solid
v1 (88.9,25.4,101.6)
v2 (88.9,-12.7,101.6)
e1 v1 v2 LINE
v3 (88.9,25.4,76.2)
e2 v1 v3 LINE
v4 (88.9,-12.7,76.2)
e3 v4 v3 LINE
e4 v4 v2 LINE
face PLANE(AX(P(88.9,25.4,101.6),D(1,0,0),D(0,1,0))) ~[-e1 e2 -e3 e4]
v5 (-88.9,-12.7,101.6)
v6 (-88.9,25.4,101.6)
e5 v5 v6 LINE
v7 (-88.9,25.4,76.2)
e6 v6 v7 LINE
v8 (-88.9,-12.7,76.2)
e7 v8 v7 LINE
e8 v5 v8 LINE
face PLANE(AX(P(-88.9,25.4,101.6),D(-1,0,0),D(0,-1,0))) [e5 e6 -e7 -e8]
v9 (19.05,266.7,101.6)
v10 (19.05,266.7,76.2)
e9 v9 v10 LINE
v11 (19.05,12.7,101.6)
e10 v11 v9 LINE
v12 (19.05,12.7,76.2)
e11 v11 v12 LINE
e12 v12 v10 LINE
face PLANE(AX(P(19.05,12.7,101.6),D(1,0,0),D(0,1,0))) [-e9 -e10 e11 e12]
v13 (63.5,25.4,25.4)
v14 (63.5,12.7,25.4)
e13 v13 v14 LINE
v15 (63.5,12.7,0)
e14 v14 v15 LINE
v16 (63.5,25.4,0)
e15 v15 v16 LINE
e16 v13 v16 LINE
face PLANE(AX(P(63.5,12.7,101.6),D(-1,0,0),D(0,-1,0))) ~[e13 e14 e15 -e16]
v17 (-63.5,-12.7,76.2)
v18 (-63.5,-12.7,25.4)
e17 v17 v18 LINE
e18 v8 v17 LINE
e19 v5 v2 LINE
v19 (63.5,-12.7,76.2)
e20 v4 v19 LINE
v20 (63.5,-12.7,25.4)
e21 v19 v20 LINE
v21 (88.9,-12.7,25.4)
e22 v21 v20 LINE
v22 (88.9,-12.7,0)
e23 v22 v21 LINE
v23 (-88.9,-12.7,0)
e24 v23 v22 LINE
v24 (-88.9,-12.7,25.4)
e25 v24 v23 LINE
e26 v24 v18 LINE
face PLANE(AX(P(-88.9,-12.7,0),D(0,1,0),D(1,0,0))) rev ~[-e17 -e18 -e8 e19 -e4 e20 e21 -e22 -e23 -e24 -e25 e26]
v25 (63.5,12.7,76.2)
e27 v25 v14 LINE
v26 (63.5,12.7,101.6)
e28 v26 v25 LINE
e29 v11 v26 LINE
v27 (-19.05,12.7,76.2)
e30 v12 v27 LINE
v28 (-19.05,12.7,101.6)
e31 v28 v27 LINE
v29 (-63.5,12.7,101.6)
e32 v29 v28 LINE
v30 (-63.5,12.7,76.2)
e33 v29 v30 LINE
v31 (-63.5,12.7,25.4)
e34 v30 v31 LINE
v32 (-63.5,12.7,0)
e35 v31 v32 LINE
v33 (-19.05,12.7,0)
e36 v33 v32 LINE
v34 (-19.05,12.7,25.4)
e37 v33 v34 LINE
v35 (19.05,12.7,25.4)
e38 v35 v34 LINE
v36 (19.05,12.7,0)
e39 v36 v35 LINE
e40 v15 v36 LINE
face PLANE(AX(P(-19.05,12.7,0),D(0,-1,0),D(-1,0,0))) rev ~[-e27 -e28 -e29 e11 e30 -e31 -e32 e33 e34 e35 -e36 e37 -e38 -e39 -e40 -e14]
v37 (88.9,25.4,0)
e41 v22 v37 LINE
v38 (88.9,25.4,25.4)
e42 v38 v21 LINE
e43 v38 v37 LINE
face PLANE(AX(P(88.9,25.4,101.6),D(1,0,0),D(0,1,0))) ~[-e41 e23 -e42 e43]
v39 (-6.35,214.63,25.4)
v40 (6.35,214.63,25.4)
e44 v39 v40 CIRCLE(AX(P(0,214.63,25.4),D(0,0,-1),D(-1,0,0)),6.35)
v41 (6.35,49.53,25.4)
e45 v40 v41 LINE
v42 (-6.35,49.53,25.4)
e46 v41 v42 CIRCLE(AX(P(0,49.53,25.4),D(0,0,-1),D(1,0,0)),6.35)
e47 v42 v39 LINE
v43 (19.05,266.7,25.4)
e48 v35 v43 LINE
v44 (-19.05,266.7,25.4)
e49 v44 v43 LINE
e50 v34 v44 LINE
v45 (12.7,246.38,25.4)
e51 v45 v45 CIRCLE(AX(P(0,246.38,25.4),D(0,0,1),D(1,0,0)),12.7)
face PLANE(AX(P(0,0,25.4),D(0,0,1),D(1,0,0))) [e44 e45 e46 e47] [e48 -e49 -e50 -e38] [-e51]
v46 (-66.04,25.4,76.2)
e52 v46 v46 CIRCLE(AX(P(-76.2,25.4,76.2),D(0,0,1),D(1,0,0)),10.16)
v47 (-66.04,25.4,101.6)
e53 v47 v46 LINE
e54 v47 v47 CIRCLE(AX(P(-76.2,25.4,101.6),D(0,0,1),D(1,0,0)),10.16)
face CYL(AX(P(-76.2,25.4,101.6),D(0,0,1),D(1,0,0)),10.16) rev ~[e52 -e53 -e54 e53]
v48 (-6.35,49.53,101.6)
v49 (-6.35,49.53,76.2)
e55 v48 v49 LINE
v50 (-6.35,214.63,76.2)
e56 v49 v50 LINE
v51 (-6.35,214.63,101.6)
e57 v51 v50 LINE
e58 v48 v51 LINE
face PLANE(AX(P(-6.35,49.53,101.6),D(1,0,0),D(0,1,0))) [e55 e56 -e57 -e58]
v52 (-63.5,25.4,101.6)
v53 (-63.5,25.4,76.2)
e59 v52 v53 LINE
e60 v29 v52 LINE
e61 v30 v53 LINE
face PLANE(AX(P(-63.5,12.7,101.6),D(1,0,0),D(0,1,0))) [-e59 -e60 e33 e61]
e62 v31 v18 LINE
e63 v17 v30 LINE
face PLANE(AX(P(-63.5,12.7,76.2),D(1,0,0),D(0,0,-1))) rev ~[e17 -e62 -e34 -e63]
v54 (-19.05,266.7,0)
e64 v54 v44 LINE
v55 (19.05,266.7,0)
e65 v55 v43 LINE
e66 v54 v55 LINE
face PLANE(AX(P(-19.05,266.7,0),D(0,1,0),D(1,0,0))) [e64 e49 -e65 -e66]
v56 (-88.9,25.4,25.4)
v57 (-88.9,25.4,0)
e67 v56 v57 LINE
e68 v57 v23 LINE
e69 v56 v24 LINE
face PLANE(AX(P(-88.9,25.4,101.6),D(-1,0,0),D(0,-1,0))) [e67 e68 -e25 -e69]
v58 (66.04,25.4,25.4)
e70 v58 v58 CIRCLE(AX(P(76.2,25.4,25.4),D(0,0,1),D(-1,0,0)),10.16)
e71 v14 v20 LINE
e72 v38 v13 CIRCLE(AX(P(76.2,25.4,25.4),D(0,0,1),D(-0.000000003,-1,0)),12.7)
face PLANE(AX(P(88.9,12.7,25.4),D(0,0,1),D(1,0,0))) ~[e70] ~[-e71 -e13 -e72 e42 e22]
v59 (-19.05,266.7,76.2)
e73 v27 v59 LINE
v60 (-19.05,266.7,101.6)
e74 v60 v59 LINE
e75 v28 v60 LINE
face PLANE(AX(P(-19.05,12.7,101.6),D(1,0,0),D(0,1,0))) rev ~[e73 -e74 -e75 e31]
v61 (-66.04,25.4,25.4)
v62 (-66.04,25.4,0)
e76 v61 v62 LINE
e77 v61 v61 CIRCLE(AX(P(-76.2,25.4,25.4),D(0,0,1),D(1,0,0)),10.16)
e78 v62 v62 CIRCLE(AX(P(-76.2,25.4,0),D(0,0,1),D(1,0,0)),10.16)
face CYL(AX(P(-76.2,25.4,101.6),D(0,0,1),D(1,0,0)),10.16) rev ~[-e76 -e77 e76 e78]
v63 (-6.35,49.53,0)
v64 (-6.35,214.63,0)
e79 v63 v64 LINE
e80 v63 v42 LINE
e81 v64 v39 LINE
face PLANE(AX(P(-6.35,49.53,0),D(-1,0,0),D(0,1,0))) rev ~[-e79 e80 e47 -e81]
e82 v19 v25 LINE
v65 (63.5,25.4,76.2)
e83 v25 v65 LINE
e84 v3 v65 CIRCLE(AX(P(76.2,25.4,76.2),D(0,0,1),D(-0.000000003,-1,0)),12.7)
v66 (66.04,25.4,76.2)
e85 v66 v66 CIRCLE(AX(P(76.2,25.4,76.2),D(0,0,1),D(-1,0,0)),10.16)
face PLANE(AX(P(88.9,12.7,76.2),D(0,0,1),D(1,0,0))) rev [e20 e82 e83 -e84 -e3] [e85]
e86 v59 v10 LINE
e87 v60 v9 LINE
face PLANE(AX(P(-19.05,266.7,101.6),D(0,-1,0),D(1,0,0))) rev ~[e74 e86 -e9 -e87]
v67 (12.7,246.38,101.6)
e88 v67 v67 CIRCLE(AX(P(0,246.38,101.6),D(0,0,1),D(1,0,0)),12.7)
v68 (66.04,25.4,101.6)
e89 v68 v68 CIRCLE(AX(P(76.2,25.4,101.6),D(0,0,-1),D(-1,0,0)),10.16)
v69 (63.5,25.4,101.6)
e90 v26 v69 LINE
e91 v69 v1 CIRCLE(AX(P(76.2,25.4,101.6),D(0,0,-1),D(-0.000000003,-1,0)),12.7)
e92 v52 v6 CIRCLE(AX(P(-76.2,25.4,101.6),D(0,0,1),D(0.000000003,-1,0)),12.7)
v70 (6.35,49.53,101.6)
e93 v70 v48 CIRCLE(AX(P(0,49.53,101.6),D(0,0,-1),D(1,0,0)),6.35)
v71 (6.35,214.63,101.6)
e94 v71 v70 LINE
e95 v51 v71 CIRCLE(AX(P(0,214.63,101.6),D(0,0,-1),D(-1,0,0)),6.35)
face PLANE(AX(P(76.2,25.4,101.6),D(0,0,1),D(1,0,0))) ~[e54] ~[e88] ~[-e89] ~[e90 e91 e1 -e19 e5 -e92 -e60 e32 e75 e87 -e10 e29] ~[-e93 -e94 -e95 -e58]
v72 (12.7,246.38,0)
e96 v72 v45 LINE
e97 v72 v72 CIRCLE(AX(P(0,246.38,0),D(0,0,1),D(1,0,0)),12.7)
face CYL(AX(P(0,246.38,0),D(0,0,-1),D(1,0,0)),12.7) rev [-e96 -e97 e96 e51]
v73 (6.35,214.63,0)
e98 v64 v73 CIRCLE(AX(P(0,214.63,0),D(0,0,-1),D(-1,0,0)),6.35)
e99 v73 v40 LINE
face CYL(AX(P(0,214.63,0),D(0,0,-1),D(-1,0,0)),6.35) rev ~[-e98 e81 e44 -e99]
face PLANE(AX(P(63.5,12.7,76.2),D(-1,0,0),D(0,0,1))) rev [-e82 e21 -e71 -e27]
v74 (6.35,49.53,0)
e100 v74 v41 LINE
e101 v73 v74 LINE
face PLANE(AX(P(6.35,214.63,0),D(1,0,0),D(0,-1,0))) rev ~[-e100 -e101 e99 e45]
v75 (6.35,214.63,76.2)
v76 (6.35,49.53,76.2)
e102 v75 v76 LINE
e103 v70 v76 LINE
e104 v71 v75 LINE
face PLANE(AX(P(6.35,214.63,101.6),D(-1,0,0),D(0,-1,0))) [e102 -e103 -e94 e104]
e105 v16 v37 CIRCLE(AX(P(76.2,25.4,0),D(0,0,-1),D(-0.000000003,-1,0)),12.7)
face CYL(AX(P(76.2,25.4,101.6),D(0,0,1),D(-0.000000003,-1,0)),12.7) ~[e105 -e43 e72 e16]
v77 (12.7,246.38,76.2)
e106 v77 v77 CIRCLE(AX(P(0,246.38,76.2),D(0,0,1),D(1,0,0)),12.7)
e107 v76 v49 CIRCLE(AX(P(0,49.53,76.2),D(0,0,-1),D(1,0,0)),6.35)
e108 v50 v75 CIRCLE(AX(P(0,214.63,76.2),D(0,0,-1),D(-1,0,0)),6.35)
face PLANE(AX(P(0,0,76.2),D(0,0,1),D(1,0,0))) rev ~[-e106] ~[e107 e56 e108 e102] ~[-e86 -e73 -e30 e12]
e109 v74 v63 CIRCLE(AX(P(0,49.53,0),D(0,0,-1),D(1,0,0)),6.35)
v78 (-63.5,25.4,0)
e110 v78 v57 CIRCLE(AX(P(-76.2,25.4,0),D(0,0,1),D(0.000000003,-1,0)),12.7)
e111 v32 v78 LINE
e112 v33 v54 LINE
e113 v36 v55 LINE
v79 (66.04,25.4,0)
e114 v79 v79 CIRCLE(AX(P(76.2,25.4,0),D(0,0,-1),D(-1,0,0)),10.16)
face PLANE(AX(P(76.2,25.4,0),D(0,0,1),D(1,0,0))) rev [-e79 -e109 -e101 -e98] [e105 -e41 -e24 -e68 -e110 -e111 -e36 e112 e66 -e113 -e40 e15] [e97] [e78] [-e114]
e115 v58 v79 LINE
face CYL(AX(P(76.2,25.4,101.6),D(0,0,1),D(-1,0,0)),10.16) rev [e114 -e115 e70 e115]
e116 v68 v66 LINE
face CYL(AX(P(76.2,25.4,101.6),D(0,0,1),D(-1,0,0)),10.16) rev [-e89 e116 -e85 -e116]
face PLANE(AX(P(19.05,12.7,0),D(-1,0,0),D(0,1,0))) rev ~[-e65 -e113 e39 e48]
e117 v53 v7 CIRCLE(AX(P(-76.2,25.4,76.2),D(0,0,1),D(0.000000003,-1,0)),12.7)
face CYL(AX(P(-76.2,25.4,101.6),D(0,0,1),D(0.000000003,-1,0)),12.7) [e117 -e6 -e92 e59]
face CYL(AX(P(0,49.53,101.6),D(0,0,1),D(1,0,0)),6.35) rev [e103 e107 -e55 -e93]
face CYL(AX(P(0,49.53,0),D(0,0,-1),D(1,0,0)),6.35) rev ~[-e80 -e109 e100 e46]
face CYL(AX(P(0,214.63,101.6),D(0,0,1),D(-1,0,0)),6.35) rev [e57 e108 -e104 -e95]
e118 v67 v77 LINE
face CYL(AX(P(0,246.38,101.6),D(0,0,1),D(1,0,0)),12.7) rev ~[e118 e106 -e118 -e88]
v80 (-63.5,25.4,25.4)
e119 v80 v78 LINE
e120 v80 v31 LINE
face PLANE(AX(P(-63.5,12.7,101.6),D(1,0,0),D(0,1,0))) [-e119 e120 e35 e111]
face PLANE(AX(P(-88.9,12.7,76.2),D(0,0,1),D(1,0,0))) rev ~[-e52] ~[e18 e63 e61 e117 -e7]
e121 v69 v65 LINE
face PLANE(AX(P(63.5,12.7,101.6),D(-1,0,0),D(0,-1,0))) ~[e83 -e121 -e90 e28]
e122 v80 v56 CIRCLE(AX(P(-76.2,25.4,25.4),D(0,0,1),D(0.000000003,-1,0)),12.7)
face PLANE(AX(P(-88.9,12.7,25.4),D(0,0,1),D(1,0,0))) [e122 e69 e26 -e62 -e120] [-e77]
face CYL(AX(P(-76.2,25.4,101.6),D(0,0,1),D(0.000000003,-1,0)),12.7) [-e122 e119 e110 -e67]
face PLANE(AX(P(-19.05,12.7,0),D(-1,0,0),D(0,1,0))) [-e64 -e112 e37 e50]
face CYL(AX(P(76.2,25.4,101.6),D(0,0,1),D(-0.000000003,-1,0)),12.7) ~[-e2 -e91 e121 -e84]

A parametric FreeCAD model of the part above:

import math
import FreeCAD as App
import Part
import Sketcher
from FreeCAD import Vector
Q = App.Units.Quantity


def add_polygon(sketch, points):
    """Adds a closed chain of lines whose ends are joined by coincident constraints."""
    first, n = sketch.GeometryCount, len(points)
    for a, b in zip(points, points[1:] + points[:1]):
        sketch.addGeometry(Part.LineSegment(App.Vector(*a, 0), App.Vector(*b, 0)), False)
    for i in range(n):
        sketch.addConstraint(Sketcher.Constraint("Coincident", first + i, 2, first + (i + 1) % n, 1))

doc = App.newDocument("Part")
body = doc.addObject("PartDesign::Body", "Body")

# Sketch on XY plane
sketch1 = doc.addObject("Sketcher::SketchObject", "Sketch")
body.addObject(sketch1)
sketch1.AttachmentSupport = (doc.XY_Plane, [""])
sketch1.MapMode = "FlatFace"
add_polygon(sketch1, [(-89, -13), (89, -13), (89, 13), (19, 13), (19, 267), (-19, 267), (-19, 13), (-89, 13)])  # lines 0-7
sketch1.addGeometry(Part.LineSegment(Vector(6, 215, 0), Vector(6, 50, 0)), False)  # 8
sketch1.addGeometry(Part.ArcOfCircle(Part.Circle(Vector(0, 50, 0), Vector(0, 0, 1), 6), math.radians(180), math.radians(360)), False)  # 9
sketch1.addGeometry(Part.LineSegment(Vector(-6, 50, 0), Vector(-6, 215, 0)), False)  # 10
sketch1.addGeometry(Part.ArcOfCircle(Part.Circle(Vector(0, 215, 0), Vector(0, 0, 1), 6), math.radians(0), math.radians(180)), False)  # 11
sketch1.addGeometry(Part.Circle(Vector(0, 246, 0), Vector(0, 0, 1), 13), False)  # 12
sketch1.addConstraint([
    Sketcher.Constraint("Tangent", 8, 2, 9, 2),
    Sketcher.Constraint("Tangent", 9, 1, 10, 1),
    Sketcher.Constraint("Tangent", 10, 2, 11, 2),
    Sketcher.Constraint("Tangent", 11, 1, 8, 1),
    Sketcher.Constraint("Horizontal", 0),
    Sketcher.Constraint("Vertical", 1),
    Sketcher.Constraint("Horizontal", 2),
    Sketcher.Constraint("Vertical", 3),
    Sketcher.Constraint("Horizontal", 4),
    Sketcher.Constraint("Vertical", 5),
    Sketcher.Constraint("Horizontal", 6),
    Sketcher.Constraint("Vertical", 7),
    Sketcher.Constraint("Vertical", 8),
    Sketcher.Constraint("Vertical", 10),
    Sketcher.Constraint("Symmetric", 0, 2, 6, 2, -1, 1),
    Sketcher.Constraint("Symmetric", 2, 2, 5, 2, -2),
    Sketcher.Constraint("PointOnObject", 9, 3, -2),
    Sketcher.Constraint("PointOnObject", 12, 3, -2),
    Sketcher.Constraint("Diameter", 12, Q("1 in")),
    Sketcher.Constraint("DistanceX", 0, 1, 0, 2, Q("7 in")),
    Sketcher.Constraint("DistanceY", 1, 1, 1, 2, Q("1 in")),
    Sketcher.Constraint("DistanceY", 3, 1, 3, 2, Q("10 in")),
    Sketcher.Constraint("Radius", 9, Q("0.25 in")),
    Sketcher.Constraint("DistanceX", 4, 2, 4, 1, Q("1.5 in")),
    Sketcher.Constraint("DistanceY", 8, 2, 8, 1, Q("6.5 in")),
    Sketcher.Constraint("DistanceY", -1, 1, 12, 3, Q("9.7 in")),
    Sketcher.Constraint("DistanceY", -1, 1, 9, 3, Q("1.95 in")),
])
pad1 = doc.addObject("PartDesign::Pad", "Pad")
body.addObject(pad1)
pad1.Profile = sketch1
pad1.Length = Q("1 in")

# Sketch on XY plane
sketch2 = doc.addObject("Sketcher::SketchObject", "Sketch001")
body.addObject(sketch2)
sketch2.AttachmentSupport = (doc.XY_Plane, [""])
sketch2.MapMode = "FlatFace"
add_polygon(sketch2, [(-89, 13), (-89, -13), (89, -13), (89, 13)])  # lines 0-3
sketch2.addConstraint([
    Sketcher.Constraint("Vertical", 0),
    Sketcher.Constraint("Horizontal", 1),
    Sketcher.Constraint("Vertical", 2),
    Sketcher.Constraint("Horizontal", 3),
    Sketcher.Constraint("Symmetric", 0, 2, 2, 2, -1, 1),
    Sketcher.Constraint("DistanceX", 1, 1, 1, 2, Q("7 in")),
    Sketcher.Constraint("DistanceY", 0, 2, 0, 1, Q("1 in")),
])
pad2 = doc.addObject("PartDesign::Pad", "Pad001")
body.addObject(pad2)
pad2.Profile = sketch2
pad2.Length = Q("4 in")

# Sketch on XY plane
sketch3 = doc.addObject("Sketcher::SketchObject", "Sketch002")
body.addObject(sketch3)
sketch3.AttachmentSupport = (doc.XY_Plane, [""])
sketch3.MapMode = "FlatFace"
sketch3.AttachmentOffset = App.Placement(Vector(0, 0, 4 * 25.4), App.Rotation())
add_polygon(sketch3, [(-89, -13), (89, -13), (89, 13), (19, 13), (19, 267), (-19, 267), (-19, 13), (-89, 13)])  # lines 0-7
sketch3.addGeometry(Part.LineSegment(Vector(6, 215, 0), Vector(6, 50, 0)), False)  # 8
sketch3.addGeometry(Part.ArcOfCircle(Part.Circle(Vector(0, 50, 0), Vector(0, 0, 1), 6), math.radians(180), math.radians(360)), False)  # 9
sketch3.addGeometry(Part.LineSegment(Vector(-6, 50, 0), Vector(-6, 215, 0)), False)  # 10
sketch3.addGeometry(Part.ArcOfCircle(Part.Circle(Vector(0, 215, 0), Vector(0, 0, 1), 6), math.radians(0), math.radians(180)), False)  # 11
sketch3.addGeometry(Part.Circle(Vector(0, 246, 0), Vector(0, 0, 1), 13), False)  # 12
sketch3.addConstraint([
    Sketcher.Constraint("Tangent", 8, 2, 9, 2),
    Sketcher.Constraint("Tangent", 9, 1, 10, 1),
    Sketcher.Constraint("Tangent", 10, 2, 11, 2),
    Sketcher.Constraint("Tangent", 11, 1, 8, 1),
    Sketcher.Constraint("Horizontal", 0),
    Sketcher.Constraint("Vertical", 1),
    Sketcher.Constraint("Horizontal", 2),
    Sketcher.Constraint("Vertical", 3),
    Sketcher.Constraint("Horizontal", 4),
    Sketcher.Constraint("Vertical", 5),
    Sketcher.Constraint("Horizontal", 6),
    Sketcher.Constraint("Vertical", 7),
    Sketcher.Constraint("Vertical", 8),
    Sketcher.Constraint("Vertical", 10),
    Sketcher.Constraint("Symmetric", 0, 2, 6, 2, -1, 1),
    Sketcher.Constraint("Symmetric", 2, 2, 5, 2, -2),
    Sketcher.Constraint("PointOnObject", 9, 3, -2),
    Sketcher.Constraint("PointOnObject", 12, 3, -2),
    Sketcher.Constraint("Diameter", 12, Q("1 in")),
    Sketcher.Constraint("DistanceX", 0, 1, 0, 2, Q("7 in")),
    Sketcher.Constraint("DistanceY", 1, 1, 1, 2, Q("1 in")),
    Sketcher.Constraint("DistanceY", 3, 1, 3, 2, Q("10 in")),
    Sketcher.Constraint("Radius", 9, Q("0.25 in")),
    Sketcher.Constraint("DistanceX", 4, 2, 4, 1, Q("1.5 in")),
    Sketcher.Constraint("DistanceY", 8, 2, 8, 1, Q("6.5 in")),
    Sketcher.Constraint("DistanceY", -1, 1, 12, 3, Q("9.7 in")),
    Sketcher.Constraint("DistanceY", -1, 1, 9, 3, Q("1.95 in")),
])
pad3 = doc.addObject("PartDesign::Pad", "Pad002")
body.addObject(pad3)
pad3.Profile = sketch3
pad3.Length = Q("1 in")
pad3.Reversed = True

# Sketch on XY plane
sketch4 = doc.addObject("Sketcher::SketchObject", "Sketch003")
body.addObject(sketch4)
sketch4.AttachmentSupport = (doc.XY_Plane, [""])
sketch4.MapMode = "FlatFace"
sketch4.AttachmentOffset = App.Placement(Vector(0, 0, 4 * 25.4), App.Rotation())
sketch4.addGeometry([
    Part.LineSegment(Vector(-89, 25, 0), Vector(-89, 13, 0)),  # 0
    Part.LineSegment(Vector(-89, 13, 0), Vector(-64, 13, 0)),  # 1
    Part.LineSegment(Vector(-64, 13, 0), Vector(-64, 25, 0)),  # 2
    Part.ArcOfCircle(Part.Circle(Vector(-76, 25, 0), Vector(0, 0, 1), 13), math.radians(0), math.radians(180)),  # 3
    Part.Circle(Vector(-76, 25, 0), Vector(0, 0, 1), 10),  # 4
], False)
sketch4.addConstraint([
    Sketcher.Constraint("Coincident", 0, 2, 1, 1),
    Sketcher.Constraint("Coincident", 1, 2, 2, 1),
    Sketcher.Constraint("Tangent", 2, 2, 3, 1),
    Sketcher.Constraint("Tangent", 3, 2, 0, 1),
    Sketcher.Constraint("Vertical", 0),
    Sketcher.Constraint("Horizontal", 1),
    Sketcher.Constraint("Vertical", 2),
    Sketcher.Constraint("Coincident", 4, 3, 3, 3),
    Sketcher.Constraint("Diameter", 4, Q("0.8 in")),
    Sketcher.Constraint("Radius", 3, Q("0.5 in")),
    Sketcher.Constraint("DistanceY", 0, 2, 0, 1, Q("0.5 in")),
    Sketcher.Constraint("DistanceX", 3, 3, -1, 1, Q("3 in")),
    Sketcher.Constraint("DistanceY", -1, 1, 3, 3, Q("1 in")),
])
pad4 = doc.addObject("PartDesign::Pad", "Pad003")
body.addObject(pad4)
pad4.Profile = sketch4
pad4.Length = Q("4 in")
pad4.Reversed = True

# Sketch on XZ plane
sketch5 = doc.addObject("Sketcher::SketchObject", "Sketch004")
body.addObject(sketch5)
sketch5.AttachmentSupport = (doc.XZ_Plane, [""])
sketch5.MapMode = "FlatFace"
sketch5.AttachmentOffset = App.Placement(Vector(0, 0, -0.5 * 25.4), App.Rotation())
add_polygon(sketch5, [(-89, 25), (-89, 76), (-64, 76), (-64, 25)])  # lines 0-3
sketch5.addConstraint([
    Sketcher.Constraint("Vertical", 0),
    Sketcher.Constraint("Horizontal", 1),
    Sketcher.Constraint("Vertical", 2),
    Sketcher.Constraint("Horizontal", 3),
    Sketcher.Constraint("DistanceX", 1, 1, 1, 2, Q("1 in")),
    Sketcher.Constraint("DistanceY", 0, 1, 0, 2, Q("2 in")),
    Sketcher.Constraint("DistanceY", -1, 1, 0, 2, Q("3 in")),
    Sketcher.Constraint("DistanceX", 0, 2, -1, 1, Q("3.5 in")),
])
pocket1 = doc.addObject("PartDesign::Pocket", "Pocket")
body.addObject(pocket1)
pocket1.Profile = sketch5
pocket1.Length = 577.297384
pocket1.Midplane = True
doc.recompute()

mirrored = doc.addObject("PartDesign::Mirrored", "Mirrored")
body.addObject(mirrored)
mirrored.Originals = [pad4, pocket1]
mirrored.MirrorPlane = (doc.YZ_Plane, [""])
body.Tip = mirrored

doc.recompute()
